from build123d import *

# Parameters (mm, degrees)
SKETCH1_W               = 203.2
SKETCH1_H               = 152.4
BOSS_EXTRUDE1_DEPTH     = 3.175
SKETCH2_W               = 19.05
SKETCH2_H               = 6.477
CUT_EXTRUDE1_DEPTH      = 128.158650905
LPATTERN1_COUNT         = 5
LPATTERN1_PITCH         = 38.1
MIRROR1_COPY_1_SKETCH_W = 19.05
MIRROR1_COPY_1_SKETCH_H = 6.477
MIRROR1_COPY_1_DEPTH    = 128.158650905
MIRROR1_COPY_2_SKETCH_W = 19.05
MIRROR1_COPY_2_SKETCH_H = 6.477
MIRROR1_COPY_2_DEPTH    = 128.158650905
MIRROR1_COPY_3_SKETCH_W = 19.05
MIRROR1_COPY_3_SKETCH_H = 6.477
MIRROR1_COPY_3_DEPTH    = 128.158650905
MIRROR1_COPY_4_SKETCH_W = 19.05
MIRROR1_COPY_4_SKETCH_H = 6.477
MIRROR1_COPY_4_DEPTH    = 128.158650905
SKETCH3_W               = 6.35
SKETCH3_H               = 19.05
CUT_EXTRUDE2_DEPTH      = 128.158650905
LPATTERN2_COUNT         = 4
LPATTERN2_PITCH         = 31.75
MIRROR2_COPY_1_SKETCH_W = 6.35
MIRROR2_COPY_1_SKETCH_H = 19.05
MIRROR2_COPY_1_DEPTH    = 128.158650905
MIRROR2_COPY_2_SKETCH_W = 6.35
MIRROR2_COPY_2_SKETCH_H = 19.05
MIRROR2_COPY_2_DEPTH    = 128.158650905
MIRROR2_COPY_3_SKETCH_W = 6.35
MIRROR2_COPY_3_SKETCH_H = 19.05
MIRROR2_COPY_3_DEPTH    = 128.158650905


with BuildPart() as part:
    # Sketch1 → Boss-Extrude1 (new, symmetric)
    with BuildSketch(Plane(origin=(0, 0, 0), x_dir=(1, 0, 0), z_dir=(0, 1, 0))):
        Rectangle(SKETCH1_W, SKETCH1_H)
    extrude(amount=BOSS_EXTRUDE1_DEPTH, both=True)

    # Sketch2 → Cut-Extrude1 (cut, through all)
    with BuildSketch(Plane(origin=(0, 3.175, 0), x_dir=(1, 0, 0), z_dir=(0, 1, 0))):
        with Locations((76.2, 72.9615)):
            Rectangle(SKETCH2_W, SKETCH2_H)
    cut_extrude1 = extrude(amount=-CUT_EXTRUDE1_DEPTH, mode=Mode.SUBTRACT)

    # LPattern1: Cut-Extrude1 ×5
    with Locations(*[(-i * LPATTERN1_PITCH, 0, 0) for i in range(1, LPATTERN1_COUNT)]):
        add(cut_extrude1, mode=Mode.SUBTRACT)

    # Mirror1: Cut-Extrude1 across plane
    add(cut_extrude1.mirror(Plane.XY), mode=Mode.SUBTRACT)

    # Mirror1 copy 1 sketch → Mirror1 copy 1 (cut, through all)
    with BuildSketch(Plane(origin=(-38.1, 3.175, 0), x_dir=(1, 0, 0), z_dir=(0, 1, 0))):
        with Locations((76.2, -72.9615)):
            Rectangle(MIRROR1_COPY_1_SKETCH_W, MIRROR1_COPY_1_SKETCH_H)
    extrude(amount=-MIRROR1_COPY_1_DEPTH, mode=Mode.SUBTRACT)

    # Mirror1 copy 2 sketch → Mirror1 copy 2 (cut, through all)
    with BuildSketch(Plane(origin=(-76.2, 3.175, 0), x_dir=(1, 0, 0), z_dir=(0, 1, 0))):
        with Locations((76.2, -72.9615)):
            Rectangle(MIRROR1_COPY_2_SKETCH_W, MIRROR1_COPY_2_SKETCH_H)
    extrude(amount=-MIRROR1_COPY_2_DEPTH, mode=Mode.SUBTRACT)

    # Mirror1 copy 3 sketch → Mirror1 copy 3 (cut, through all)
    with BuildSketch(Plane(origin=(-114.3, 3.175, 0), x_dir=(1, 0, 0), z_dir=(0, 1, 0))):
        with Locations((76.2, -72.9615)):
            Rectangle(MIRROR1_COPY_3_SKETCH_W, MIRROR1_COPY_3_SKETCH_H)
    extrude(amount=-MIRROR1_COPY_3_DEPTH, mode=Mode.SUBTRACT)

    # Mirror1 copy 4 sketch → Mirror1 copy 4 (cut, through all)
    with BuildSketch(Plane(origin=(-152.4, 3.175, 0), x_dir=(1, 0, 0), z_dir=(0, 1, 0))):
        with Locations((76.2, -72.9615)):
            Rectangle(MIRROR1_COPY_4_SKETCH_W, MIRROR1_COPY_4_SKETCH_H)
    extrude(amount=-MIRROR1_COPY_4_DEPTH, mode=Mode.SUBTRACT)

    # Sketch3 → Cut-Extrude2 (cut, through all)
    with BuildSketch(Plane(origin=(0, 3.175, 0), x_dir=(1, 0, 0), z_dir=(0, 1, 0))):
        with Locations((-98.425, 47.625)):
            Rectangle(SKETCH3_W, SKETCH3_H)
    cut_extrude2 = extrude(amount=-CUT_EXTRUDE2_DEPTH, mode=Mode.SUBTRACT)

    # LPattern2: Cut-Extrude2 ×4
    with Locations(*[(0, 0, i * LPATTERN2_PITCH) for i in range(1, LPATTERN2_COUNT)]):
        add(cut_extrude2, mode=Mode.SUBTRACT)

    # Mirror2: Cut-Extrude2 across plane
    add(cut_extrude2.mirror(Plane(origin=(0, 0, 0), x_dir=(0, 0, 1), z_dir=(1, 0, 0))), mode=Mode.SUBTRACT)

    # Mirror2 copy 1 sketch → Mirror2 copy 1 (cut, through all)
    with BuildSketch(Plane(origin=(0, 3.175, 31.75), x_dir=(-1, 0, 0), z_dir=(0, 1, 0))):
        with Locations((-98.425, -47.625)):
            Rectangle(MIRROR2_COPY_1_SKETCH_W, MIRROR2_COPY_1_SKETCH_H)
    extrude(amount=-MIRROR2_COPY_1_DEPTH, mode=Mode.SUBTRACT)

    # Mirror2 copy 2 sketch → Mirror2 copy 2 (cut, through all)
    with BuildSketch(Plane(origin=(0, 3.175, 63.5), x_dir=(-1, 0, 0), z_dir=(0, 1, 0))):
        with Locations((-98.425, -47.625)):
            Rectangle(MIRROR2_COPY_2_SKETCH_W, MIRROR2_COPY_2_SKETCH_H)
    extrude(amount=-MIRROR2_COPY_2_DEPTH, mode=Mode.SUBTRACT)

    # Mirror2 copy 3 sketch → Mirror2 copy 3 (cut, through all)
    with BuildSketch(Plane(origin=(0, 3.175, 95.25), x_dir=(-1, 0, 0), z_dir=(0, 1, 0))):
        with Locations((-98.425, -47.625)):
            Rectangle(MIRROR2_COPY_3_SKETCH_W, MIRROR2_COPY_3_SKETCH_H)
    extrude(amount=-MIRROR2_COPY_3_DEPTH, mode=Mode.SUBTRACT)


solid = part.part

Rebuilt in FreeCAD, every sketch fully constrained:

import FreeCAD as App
import Part
import Sketcher

V = App.Vector
Q = App.Units.Quantity


def add_polygon(sketch, points):
    """Adds a closed chain of lines whose ends are joined by coincident constraints."""
    first, n = sketch.GeometryCount, len(points)
    for a, b in zip(points, points[1:] + points[:1]):
        sketch.addGeometry(Part.LineSegment(App.Vector(*a, 0), App.Vector(*b, 0)), False)
    for i in range(n):
        sketch.addConstraint(Sketcher.Constraint("Coincident", first + i, 2, first + (i + 1) % n, 1))

doc = App.newDocument("Part")
body = doc.addObject("PartDesign::Body", "Body")

# Sketch on XZ plane
sketch1 = body.newObject("Sketcher::SketchObject", "Sketch")
sketch1.AttachmentSupport = (doc.getObject("XZ_Plane"), [""])
sketch1.MapMode = "FlatFace"
add_polygon(sketch1, [(-102, -76), (-102, 76), (102, 76), (102, -76)])  # lines 0-3
sketch1.addConstraint(Sketcher.Constraint("Vertical", 0))
sketch1.addConstraint(Sketcher.Constraint("Horizontal", 1))
sketch1.addConstraint(Sketcher.Constraint("Vertical", 2))
sketch1.addConstraint(Sketcher.Constraint("Horizontal", 3))
sketch1.addConstraint(Sketcher.Constraint("Symmetric", 0, 2, 2, 2, -1, 1))
sketch1.addConstraint(Sketcher.Constraint("DistanceX", 1, 1, 1, 2, Q("8 in")))
sketch1.addConstraint(Sketcher.Constraint("DistanceY", 0, 1, 0, 2, Q("6 in")))
pad1 = body.newObject("PartDesign::Pad", "Pad")
pad1.Profile = sketch1
pad1.Length = Q("0.25 in")
pad1.Midplane = True

# Sketch on XZ plane
sketch2 = body.newObject("Sketcher::SketchObject", "Sketch001")
sketch2.AttachmentSupport = (doc.getObject("XZ_Plane"), [""])
sketch2.MapMode = "FlatFace"
sketch2.AttachmentOffset = App.Placement(V(0, 0, -0.125 * 25.4), App.Rotation())
add_polygon(sketch2, [(67, -76), (67, -70), (86, -70), (86, -76)])  # lines 0-3
sketch2.addConstraint(Sketcher.Constraint("Vertical", 0))
sketch2.addConstraint(Sketcher.Constraint("Horizontal", 1))
sketch2.addConstraint(Sketcher.Constraint("Vertical", 2))
sketch2.addConstraint(Sketcher.Constraint("Horizontal", 3))
sketch2.addConstraint(Sketcher.Constraint("DistanceY", 2, 2, -1, 1, Q("3 in")))
sketch2.addConstraint(Sketcher.Constraint("DistanceX", 1, 1, 1, 2, Q("0.75 in")))
sketch2.addConstraint(Sketcher.Constraint("DistanceY", 0, 1, 0, 2, Q("0.255 in")))
sketch2.addConstraint(Sketcher.Constraint("DistanceX", -1, 1, 0, 2, Q("2.625 in")))
pocket1 = body.newObject("PartDesign::Pocket", "Pocket")
pocket1.Profile = sketch2
pocket1.Type = "ThroughAll"
pocket1.Reversed = True
doc.recompute()

linearpattern = body.newObject("PartDesign::LinearPattern", "LinearPattern")
linearpattern.Originals = [pocket1]
linearpattern.Direction = (doc.getObject("X_Axis"), [""])
linearpattern.Mode = "offset"
linearpattern.Offset = Q("1.5 in")
linearpattern.Occurrences = 5
linearpattern.Reversed = True
body.Tip = linearpattern
doc.recompute()

mirrored = body.newObject("PartDesign::Mirrored", "Mirrored")
mirrored.Originals = [pocket1]
mirrored.MirrorPlane = (doc.getObject("XY_Plane"), [""])
body.Tip = mirrored

# Sketch on XZ plane
sketch3 = body.newObject("Sketcher::SketchObject", "Sketch002")
sketch3.AttachmentSupport = (doc.getObject("XZ_Plane"), [""])
sketch3.MapMode = "FlatFace"
sketch3.AttachmentOffset = App.Placement(V(0, 0, -0.125 * 25.4), App.Rotation())
add_polygon(sketch3, [(29, 70), (29, 76), (48, 76), (48, 70)])  # lines 0-3
sketch3.addConstraint(Sketcher.Constraint("Vertical", 0))
sketch3.addConstraint(Sketcher.Constraint("Horizontal", 1))
sketch3.addConstraint(Sketcher.Constraint("Vertical", 2))
sketch3.addConstraint(Sketcher.Constraint("Horizontal", 3))
sketch3.addConstraint(Sketcher.Constraint("DistanceY", -1, 1, 0, 2, Q("3 in")))
sketch3.addConstraint(Sketcher.Constraint("DistanceX", 1, 1, 1, 2, Q("0.75 in")))
sketch3.addConstraint(Sketcher.Constraint("DistanceY", 0, 1, 0, 2, Q("0.255 in")))
sketch3.addConstraint(Sketcher.Constraint("DistanceX", -1, 1, 0, 2, Q("1.125 in")))
pocket2 = body.newObject("PartDesign::Pocket", "Pocket001")
pocket2.Profile = sketch3
pocket2.Type = "ThroughAll"
pocket2.Reversed = True

# Sketch on XZ plane
sketch4 = body.newObject("Sketcher::SketchObject", "Sketch003")
sketch4.AttachmentSupport = (doc.getObject("XZ_Plane"), [""])
sketch4.MapMode = "FlatFace"
sketch4.AttachmentOffset = App.Placement(V(0, 0, -0.125 * 25.4), App.Rotation())
add_polygon(sketch4, [(-10, 70), (-10, 76), (10, 76), (10, 70)])  # lines 0-3
sketch4.addConstraint(Sketcher.Constraint("Vertical", 0))
sketch4.addConstraint(Sketcher.Constraint("Horizontal", 1))
sketch4.addConstraint(Sketcher.Constraint("Vertical", 2))
sketch4.addConstraint(Sketcher.Constraint("Horizontal", 3))
sketch4.addConstraint(Sketcher.Constraint("DistanceY", -1, 1, 0, 2, Q("3 in")))
sketch4.addConstraint(Sketcher.Constraint("DistanceX", 1, 1, 1, 2, Q("0.75 in")))
sketch4.addConstraint(Sketcher.Constraint("DistanceY", 0, 1, 0, 2, Q("0.255 in")))
sketch4.addConstraint(Sketcher.Constraint("DistanceX", 0, 2, -1, 1, Q("0.375 in")))
pocket3 = body.newObject("PartDesign::Pocket", "Pocket002")
pocket3.Profile = sketch4
pocket3.Type = "ThroughAll"
pocket3.Reversed = True

# Sketch on XZ plane
sketch5 = body.newObject("Sketcher::SketchObject", "Sketch004")
sketch5.AttachmentSupport = (doc.getObject("XZ_Plane"), [""])
sketch5.MapMode = "FlatFace"
sketch5.AttachmentOffset = App.Placement(V(0, 0, -0.125 * 25.4), App.Rotation())
add_polygon(sketch5, [(-48, 70), (-48, 76), (-29, 76), (-29, 70)])  # lines 0-3
sketch5.addConstraint(Sketcher.Constraint("Vertical", 0))
sketch5.addConstraint(Sketcher.Constraint("Horizontal", 1))
sketch5.addConstraint(Sketcher.Constraint("Vertical", 2))
sketch5.addConstraint(Sketcher.Constraint("Horizontal", 3))
sketch5.addConstraint(Sketcher.Constraint("DistanceY", -1, 1, 0, 2, Q("3 in")))
sketch5.addConstraint(Sketcher.Constraint("DistanceX", 1, 1, 1, 2, Q("0.75 in")))
sketch5.addConstraint(Sketcher.Constraint("DistanceY", 0, 1, 0, 2, Q("0.255 in")))
sketch5.addConstraint(Sketcher.Constraint("DistanceX", 0, 2, -1, 1, Q("1.875 in")))
pocket4 = body.newObject("PartDesign::Pocket", "Pocket003")
pocket4.Profile = sketch5
pocket4.Type = "ThroughAll"
pocket4.Reversed = True

# Sketch on XZ plane
sketch6 = body.newObject("Sketcher::SketchObject", "Sketch005")
sketch6.AttachmentSupport = (doc.getObject("XZ_Plane"), [""])
sketch6.MapMode = "FlatFace"
sketch6.AttachmentOffset = App.Placement(V(0, 0, -0.125 * 25.4), App.Rotation())
add_polygon(sketch6, [(-86, 70), (-86, 76), (-67, 76), (-67, 70)])  # lines 0-3
sketch6.addConstraint(Sketcher.Constraint("Vertical", 0))
sketch6.addConstraint(Sketcher.Constraint("Horizontal", 1))
sketch6.addConstraint(Sketcher.Constraint("Vertical", 2))
sketch6.addConstraint(Sketcher.Constraint("Horizontal", 3))
sketch6.addConstraint(Sketcher.Constraint("DistanceY", -1, 1, 0, 2, Q("3 in")))
sketch6.addConstraint(Sketcher.Constraint("DistanceX", 1, 1, 1, 2, Q("0.75 in")))
sketch6.addConstraint(Sketcher.Constraint("DistanceY", 0, 1, 0, 2, Q("0.255 in")))
sketch6.addConstraint(Sketcher.Constraint("DistanceX", 0, 2, -1, 1, Q("3.375 in")))
pocket5 = body.newObject("PartDesign::Pocket", "Pocket004")
pocket5.Profile = sketch6
pocket5.Type = "ThroughAll"
pocket5.Reversed = True

# Sketch on XZ plane
sketch7 = body.newObject("Sketcher::SketchObject", "Sketch006")
sketch7.AttachmentSupport = (doc.getObject("XZ_Plane"), [""])
sketch7.MapMode = "FlatFace"
sketch7.AttachmentOffset = App.Placement(V(0, 0, -0.125 * 25.4), App.Rotation())
add_polygon(sketch7, [(-102, -57), (-102, -38), (-95, -38), (-95, -57)])  # lines 0-3
sketch7.addConstraint(Sketcher.Constraint("Vertical", 0))
sketch7.addConstraint(Sketcher.Constraint("Horizontal", 1))
sketch7.addConstraint(Sketcher.Constraint("Vertical", 2))
sketch7.addConstraint(Sketcher.Constraint("Horizontal", 3))
sketch7.addConstraint(Sketcher.Constraint("DistanceX", 0, 2, -1, 1, Q("4 in")))
sketch7.addConstraint(Sketcher.Constraint("DistanceX", 1, 1, 1, 2, Q("0.25 in")))
sketch7.addConstraint(Sketcher.Constraint("DistanceY", 0, 1, 0, 2, Q("0.75 in")))
sketch7.addConstraint(Sketcher.Constraint("DistanceY", 0, 2, -1, 1, Q("1.5 in")))
pocket6 = body.newObject("PartDesign::Pocket", "Pocket005")
pocket6.Profile = sketch7
pocket6.Type = "ThroughAll"
pocket6.Reversed = True
doc.recompute()

linearpattern2 = body.newObject("PartDesign::LinearPattern", "LinearPattern001")
linearpattern2.Originals = [pocket6]
linearpattern2.Direction = (doc.getObject("Z_Axis"), [""])
linearpattern2.Mode = "offset"
linearpattern2.Offset = Q("1.25 in")
linearpattern2.Occurrences = 4
body.Tip = linearpattern2
doc.recompute()

mirrored2 = body.newObject("PartDesign::Mirrored", "Mirrored001")
mirrored2.Originals = [pocket6]
mirrored2.MirrorPlane = (doc.getObject("YZ_Plane"), [""])
body.Tip = mirrored2

# Sketch on XZ plane
sketch8 = body.newObject("Sketcher::SketchObject", "Sketch007")
sketch8.AttachmentSupport = (doc.getObject("XZ_Plane"), [""])
sketch8.MapMode = "FlatFace"
sketch8.AttachmentOffset = App.Placement(V(0, 0, -0.125 * 25.4), App.Rotation())
add_polygon(sketch8, [(102, -6), (102, -25), (95, -25), (95, -6)])  # lines 0-3
sketch8.addConstraint(Sketcher.Constraint("Vertical", 0))
sketch8.addConstraint(Sketcher.Constraint("Horizontal", 1))
sketch8.addConstraint(Sketcher.Constraint("Vertical", 2))
sketch8.addConstraint(Sketcher.Constraint("Horizontal", 3))
sketch8.addConstraint(Sketcher.Constraint("DistanceX", -1, 1, 0, 2, Q("4 in")))
sketch8.addConstraint(Sketcher.Constraint("DistanceY", 0, 2, -1, 1, Q("1 in")))
sketch8.addConstraint(Sketcher.Constraint("DistanceX", 1, 2, 1, 1, Q("0.25 in")))
sketch8.addConstraint(Sketcher.Constraint("DistanceY", 0, 2, 0, 1, Q("0.75 in")))
pocket7 = body.newObject("PartDesign::Pocket", "Pocket006")
pocket7.Profile = sketch8
pocket7.Type = "ThroughAll"
pocket7.Reversed = True

# Sketch on XZ plane
sketch9 = body.newObject("Sketcher::SketchObject", "Sketch008")
sketch9.AttachmentSupport = (doc.getObject("XZ_Plane"), [""])
sketch9.MapMode = "FlatFace"
sketch9.AttachmentOffset = App.Placement(V(0, 0, -0.125 * 25.4), App.Rotation())
add_polygon(sketch9, [(102, 25), (102, 6), (95, 6), (95, 25)])  # lines 0-3
sketch9.addConstraint(Sketcher.Constraint("Vertical", 0))
sketch9.addConstraint(Sketcher.Constraint("Horizontal", 1))
sketch9.addConstraint(Sketcher.Constraint("Vertical", 2))
sketch9.addConstraint(Sketcher.Constraint("Horizontal", 3))
sketch9.addConstraint(Sketcher.Constraint("DistanceX", -1, 1, 0, 2, Q("4 in")))
sketch9.addConstraint(Sketcher.Constraint("DistanceY", -1, 1, 2, 2, Q("1 in")))
sketch9.addConstraint(Sketcher.Constraint("DistanceX", 1, 2, 1, 1, Q("0.25 in")))
sketch9.addConstraint(Sketcher.Constraint("DistanceY", 0, 2, 0, 1, Q("0.75 in")))
pocket8 = body.newObject("PartDesign::Pocket", "Pocket007")
pocket8.Profile = sketch9
pocket8.Type = "ThroughAll"
pocket8.Reversed = True

# Sketch on XZ plane
sketch10 = body.newObject("Sketcher::SketchObject", "Sketch009")
sketch10.AttachmentSupport = (doc.getObject("XZ_Plane"), [""])
sketch10.MapMode = "FlatFace"
sketch10.AttachmentOffset = App.Placement(V(0, 0, -0.125 * 25.4), App.Rotation())
add_polygon(sketch10, [(102, 57), (102, 38), (95, 38), (95, 57)])  # lines 0-3
sketch10.addConstraint(Sketcher.Constraint("Vertical", 0))
sketch10.addConstraint(Sketcher.Constraint("Horizontal", 1))
sketch10.addConstraint(Sketcher.Constraint("Vertical", 2))
sketch10.addConstraint(Sketcher.Constraint("Horizontal", 3))
sketch10.addConstraint(Sketcher.Constraint("DistanceX", -1, 1, 0, 2, Q("4 in")))
sketch10.addConstraint(Sketcher.Constraint("DistanceX", 1, 2, 1, 1, Q("0.25 in")))
sketch10.addConstraint(Sketcher.Constraint("DistanceY", 0, 2, 0, 1, Q("0.75 in")))
sketch10.addConstraint(Sketcher.Constraint("DistanceY", -1, 1, 0, 2, Q("1.5 in")))
pocket9 = body.newObject("PartDesign::Pocket", "Pocket008")
pocket9.Profile = sketch10
pocket9.Type = "ThroughAll"
pocket9.Reversed = True

doc.recompute()
